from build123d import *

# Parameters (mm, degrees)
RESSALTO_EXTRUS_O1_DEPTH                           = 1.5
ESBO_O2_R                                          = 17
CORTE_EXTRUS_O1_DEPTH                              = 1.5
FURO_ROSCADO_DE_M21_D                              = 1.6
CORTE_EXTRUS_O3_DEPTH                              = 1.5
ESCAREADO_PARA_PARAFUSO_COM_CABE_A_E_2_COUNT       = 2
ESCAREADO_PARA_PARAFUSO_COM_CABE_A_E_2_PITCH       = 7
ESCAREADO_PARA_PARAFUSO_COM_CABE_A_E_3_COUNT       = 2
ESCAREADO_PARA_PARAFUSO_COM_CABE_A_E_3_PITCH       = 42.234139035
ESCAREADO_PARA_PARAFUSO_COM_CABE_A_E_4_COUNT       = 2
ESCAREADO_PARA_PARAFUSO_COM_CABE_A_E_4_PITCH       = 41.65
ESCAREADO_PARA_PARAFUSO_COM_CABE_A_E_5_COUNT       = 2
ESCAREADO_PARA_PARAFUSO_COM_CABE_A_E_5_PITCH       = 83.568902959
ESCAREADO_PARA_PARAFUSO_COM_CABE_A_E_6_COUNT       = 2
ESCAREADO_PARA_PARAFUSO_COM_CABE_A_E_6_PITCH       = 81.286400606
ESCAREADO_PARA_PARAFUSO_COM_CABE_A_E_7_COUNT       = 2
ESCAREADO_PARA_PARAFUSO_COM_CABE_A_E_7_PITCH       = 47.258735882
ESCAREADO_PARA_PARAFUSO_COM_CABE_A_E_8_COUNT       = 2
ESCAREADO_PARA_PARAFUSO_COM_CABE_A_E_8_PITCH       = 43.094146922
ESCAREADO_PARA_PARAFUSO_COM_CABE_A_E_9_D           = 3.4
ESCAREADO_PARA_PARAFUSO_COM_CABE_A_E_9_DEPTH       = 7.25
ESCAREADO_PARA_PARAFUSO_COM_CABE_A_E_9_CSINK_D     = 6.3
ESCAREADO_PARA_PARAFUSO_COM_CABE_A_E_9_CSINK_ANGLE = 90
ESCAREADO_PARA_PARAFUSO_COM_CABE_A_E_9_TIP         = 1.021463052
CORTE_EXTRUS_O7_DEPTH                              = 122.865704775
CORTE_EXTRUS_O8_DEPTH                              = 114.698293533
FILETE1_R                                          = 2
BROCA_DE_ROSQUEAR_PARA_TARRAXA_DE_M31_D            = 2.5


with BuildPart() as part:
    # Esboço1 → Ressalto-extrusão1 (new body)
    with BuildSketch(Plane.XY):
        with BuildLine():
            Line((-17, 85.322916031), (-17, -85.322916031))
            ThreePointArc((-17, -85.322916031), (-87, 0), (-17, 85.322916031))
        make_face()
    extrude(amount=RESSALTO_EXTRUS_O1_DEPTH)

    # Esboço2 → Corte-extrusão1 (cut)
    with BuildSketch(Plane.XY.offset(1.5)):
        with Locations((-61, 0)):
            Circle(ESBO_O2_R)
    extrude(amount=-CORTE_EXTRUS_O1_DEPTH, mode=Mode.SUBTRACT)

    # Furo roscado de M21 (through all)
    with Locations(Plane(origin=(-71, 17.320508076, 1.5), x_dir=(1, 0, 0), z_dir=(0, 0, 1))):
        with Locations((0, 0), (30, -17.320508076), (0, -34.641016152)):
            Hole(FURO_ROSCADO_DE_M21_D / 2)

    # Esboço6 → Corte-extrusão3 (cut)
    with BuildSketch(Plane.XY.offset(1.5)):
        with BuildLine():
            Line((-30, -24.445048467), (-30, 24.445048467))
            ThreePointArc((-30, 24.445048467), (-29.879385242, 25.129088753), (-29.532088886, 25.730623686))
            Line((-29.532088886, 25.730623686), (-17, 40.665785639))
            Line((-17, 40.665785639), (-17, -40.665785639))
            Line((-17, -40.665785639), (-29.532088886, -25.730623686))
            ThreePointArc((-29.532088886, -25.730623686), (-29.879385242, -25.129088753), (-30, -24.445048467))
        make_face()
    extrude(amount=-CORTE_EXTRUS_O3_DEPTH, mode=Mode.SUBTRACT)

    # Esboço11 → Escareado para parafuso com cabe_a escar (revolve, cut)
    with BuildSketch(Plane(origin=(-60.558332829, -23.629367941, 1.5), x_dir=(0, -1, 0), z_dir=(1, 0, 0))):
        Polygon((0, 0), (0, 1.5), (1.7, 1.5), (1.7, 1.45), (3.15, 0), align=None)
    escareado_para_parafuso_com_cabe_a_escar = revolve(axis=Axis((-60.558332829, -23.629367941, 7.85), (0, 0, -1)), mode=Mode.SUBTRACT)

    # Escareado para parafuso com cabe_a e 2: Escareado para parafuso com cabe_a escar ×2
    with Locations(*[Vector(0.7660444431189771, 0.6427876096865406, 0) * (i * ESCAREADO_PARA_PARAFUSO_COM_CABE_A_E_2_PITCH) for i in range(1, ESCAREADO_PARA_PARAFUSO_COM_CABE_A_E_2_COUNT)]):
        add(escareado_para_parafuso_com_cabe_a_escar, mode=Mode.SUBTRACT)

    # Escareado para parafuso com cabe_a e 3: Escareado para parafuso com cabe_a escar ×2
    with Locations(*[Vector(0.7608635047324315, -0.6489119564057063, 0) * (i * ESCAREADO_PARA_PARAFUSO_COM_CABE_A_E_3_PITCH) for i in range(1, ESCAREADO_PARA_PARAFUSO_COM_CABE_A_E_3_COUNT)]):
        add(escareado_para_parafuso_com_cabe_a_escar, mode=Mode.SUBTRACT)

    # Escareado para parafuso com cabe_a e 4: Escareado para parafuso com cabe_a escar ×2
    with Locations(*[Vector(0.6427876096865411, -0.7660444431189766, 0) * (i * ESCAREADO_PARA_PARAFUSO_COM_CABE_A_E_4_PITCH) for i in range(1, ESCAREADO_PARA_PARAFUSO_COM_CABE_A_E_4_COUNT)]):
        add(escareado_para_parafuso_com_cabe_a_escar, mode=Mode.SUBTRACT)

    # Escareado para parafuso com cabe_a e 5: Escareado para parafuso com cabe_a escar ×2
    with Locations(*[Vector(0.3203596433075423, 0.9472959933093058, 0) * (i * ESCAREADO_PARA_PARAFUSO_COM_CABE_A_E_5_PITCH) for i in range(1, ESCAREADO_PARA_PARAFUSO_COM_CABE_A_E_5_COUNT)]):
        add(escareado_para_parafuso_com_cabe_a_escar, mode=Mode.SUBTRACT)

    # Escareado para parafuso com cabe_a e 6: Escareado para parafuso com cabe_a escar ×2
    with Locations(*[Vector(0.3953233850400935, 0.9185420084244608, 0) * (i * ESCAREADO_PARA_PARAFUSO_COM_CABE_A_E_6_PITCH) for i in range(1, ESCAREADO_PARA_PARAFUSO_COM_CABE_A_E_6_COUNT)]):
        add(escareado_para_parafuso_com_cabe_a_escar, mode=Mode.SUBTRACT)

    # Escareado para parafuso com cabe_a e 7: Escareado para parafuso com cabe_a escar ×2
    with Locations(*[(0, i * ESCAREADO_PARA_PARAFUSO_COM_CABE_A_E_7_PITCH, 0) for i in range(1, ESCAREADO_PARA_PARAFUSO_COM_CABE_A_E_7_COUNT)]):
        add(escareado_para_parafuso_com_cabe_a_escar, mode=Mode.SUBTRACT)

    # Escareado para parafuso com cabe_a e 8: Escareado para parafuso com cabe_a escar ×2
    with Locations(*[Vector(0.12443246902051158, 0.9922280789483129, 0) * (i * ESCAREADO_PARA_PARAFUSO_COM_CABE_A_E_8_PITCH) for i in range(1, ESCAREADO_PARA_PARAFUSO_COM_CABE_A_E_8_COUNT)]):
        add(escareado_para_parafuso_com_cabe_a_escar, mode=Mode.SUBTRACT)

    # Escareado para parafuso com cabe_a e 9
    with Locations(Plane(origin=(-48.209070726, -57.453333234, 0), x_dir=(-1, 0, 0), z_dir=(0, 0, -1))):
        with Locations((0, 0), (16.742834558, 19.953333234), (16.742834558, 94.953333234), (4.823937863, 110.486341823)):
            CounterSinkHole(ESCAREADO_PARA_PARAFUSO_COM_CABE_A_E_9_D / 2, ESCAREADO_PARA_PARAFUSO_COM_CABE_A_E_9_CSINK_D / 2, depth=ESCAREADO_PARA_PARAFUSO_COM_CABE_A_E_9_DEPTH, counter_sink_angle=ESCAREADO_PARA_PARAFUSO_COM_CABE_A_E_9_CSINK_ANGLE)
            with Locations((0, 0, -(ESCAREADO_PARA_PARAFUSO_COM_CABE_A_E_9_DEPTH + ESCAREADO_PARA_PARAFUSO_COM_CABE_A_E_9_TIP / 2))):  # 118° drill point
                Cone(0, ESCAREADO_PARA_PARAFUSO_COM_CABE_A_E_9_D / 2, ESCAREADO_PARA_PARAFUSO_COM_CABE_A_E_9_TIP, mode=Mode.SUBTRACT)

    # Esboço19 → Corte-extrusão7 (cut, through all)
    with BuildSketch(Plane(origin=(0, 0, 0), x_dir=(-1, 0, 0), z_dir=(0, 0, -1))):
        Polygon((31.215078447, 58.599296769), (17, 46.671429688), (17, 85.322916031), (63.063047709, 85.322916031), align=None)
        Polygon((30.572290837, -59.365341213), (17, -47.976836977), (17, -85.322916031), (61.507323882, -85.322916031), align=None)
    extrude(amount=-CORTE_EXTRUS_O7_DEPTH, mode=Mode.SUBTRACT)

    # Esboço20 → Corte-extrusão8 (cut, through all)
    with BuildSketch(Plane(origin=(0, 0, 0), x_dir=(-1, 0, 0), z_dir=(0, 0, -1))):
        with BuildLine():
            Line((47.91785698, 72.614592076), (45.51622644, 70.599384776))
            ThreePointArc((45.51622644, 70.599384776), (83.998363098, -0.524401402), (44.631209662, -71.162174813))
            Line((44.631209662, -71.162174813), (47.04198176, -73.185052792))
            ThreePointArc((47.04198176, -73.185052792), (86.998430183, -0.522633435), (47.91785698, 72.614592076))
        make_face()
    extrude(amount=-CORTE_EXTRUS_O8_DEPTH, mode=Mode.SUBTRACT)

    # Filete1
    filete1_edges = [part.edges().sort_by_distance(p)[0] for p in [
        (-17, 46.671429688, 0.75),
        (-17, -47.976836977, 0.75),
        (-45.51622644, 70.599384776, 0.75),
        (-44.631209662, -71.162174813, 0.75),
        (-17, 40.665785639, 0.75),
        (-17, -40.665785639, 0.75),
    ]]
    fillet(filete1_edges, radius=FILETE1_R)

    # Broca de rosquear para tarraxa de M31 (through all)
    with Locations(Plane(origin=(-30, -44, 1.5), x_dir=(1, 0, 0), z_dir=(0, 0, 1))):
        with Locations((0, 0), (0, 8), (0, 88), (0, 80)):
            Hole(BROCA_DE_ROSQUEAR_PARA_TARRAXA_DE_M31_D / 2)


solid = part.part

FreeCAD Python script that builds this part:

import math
import FreeCAD as App
import Part
import Sketcher
from FreeCAD import Vector
Q = App.Units.Quantity


def edges_at(feature, points):
    """Names of the edges that pass closest to the given points."""
    edges = feature.Shape.Edges
    near = lambda p: min(range(len(edges)), key=lambda i: edges[i].distToShape(Part.Vertex(*p))[0])
    return sorted({f"Edge{near(p) + 1}" for p in points})

doc = App.newDocument("Part")
body = doc.addObject("PartDesign::Body", "Body")

sketch1 = doc.addObject("Sketcher::SketchObject", "Sketch")
body.addObject(sketch1)
sketch1.AttachmentSupport = (doc.XY_Plane, [""])
sketch1.MapMode = "FlatFace"
sketch1.addGeometry([
    Part.LineSegment(Vector(-17, -85.322916, 0), Vector(-17, 85.322916, 0)),
    Part.ArcOfCircle(Part.Circle(Vector(0, 0, 0), Vector(0, 0, 1), 87), math.radians(101.268226), math.radians(258.731774)),
], False)
sketch1.addConstraint([
    Sketcher.Constraint("Coincident", 0, 1, 1, 2),
    Sketcher.Constraint("Coincident", 1, 1, 0, 2),
    Sketcher.Constraint("Vertical", 0),
    Sketcher.Constraint("Coincident", 1, 3, -1, 1),
    Sketcher.Constraint("Radius", 1, Q("87 mm")),
    Sketcher.Constraint("DistanceX", 0, 1, -1, 1, Q("17 mm")),
])
pad1 = doc.addObject("PartDesign::Pad", "Pad")
body.addObject(pad1)
pad1.Profile = sketch1
pad1.Length = 1.5

sketch2 = doc.addObject("Sketcher::SketchObject", "Sketch001")
body.addObject(sketch2)
sketch2.AttachmentSupport = (doc.XY_Plane, [""])
sketch2.MapMode = "FlatFace"
sketch2.AttachmentOffset = App.Placement(Vector(0, 0, 1.5), App.Rotation())
sketch2.addGeometry(Part.Circle(Vector(-61, 0, 0), Vector(0, 0, 1), 17), False)
sketch2.addConstraint([
    Sketcher.Constraint("PointOnObject", 0, 3, -1),
    Sketcher.Constraint("Diameter", 0, Q("34 mm")),
    Sketcher.Constraint("DistanceX", 0, 3, -1, 1, Q("61 mm")),
])
pocket1 = doc.addObject("PartDesign::Pocket", "Pocket")
body.addObject(pocket1)
pocket1.Profile = sketch2
pocket1.Length = 1.5

sketch3 = doc.addObject("Sketcher::SketchObject", "Sketch002")
body.addObject(sketch3)
sketch3.AttachmentSupport = (doc.XY_Plane, [""])
sketch3.MapMode = "FlatFace"
sketch3.AttachmentOffset = App.Placement(Vector(0, 0, 1.5), App.Rotation())
sketch3.addGeometry([
    Part.Circle(Vector(-71, 17.320508, 0), Vector(0, 0, 1), 0.8),
    Part.Circle(Vector(-41, 0, 0), Vector(0, 0, 1), 0.8),
    Part.Circle(Vector(-71, -17.320508, 0), Vector(0, 0, 1), 0.8),
], False)
sketch3.addConstraint([
    Sketcher.Constraint("Equal", 0, 1),
    Sketcher.Constraint("Equal", 1, 2),
    Sketcher.Constraint("Symmetric", 0, 3, 2, 3, -1),
    Sketcher.Constraint("PointOnObject", 1, 3, -1),
    Sketcher.Constraint("Diameter", 0, Q("1.6 mm")),
    Sketcher.Constraint("DistanceX", 0, 3, -1, 1, Q("71 mm")),
    Sketcher.Constraint("DistanceX", 1, 3, -1, 1, Q("41 mm")),
    Sketcher.Constraint("DistanceY", -1, 1, 0, 3, Q("17.320508 mm")),
])
doc.recompute()
hole = doc.addObject("PartDesign::Hole", "Hole")
body.addObject(hole)
hole.Profile = sketch3
hole.ThreadType = "None"
hole.Diameter = 1.6
hole.DepthType = "ThroughAll"

sketch4 = doc.addObject("Sketcher::SketchObject", "Sketch003")
body.addObject(sketch4)
sketch4.AttachmentSupport = (doc.XY_Plane, [""])
sketch4.MapMode = "FlatFace"
sketch4.AttachmentOffset = App.Placement(Vector(0, 0, 1.5), App.Rotation())
sketch4.addGeometry([
    Part.LineSegment(Vector(-30, 24.445048, 0), Vector(-30, -24.445048, 0)),
    Part.ArcOfCircle(Part.Circle(Vector(-28, -24.445048, 0), Vector(0, 0, 1), 2), math.radians(180), math.radians(220)),
    Part.LineSegment(Vector(-29.532089, -25.730624, 0), Vector(-17, -40.665786, 0)),
    Part.LineSegment(Vector(-17, -40.665786, 0), Vector(-17, 40.665786, 0)),
    Part.LineSegment(Vector(-17, 40.665786, 0), Vector(-29.532089, 25.730624, 0)),
    Part.ArcOfCircle(Part.Circle(Vector(-28, 24.445048, 0), Vector(0, 0, 1), 2), math.radians(140), math.radians(180)),
], False)
sketch4.addConstraint([
    Sketcher.Constraint("Tangent", 0, 2, 1, 1),
    Sketcher.Constraint("Tangent", 1, 2, 2, 1),
    Sketcher.Constraint("Coincident", 2, 2, 3, 1),
    Sketcher.Constraint("Coincident", 3, 2, 4, 1),
    Sketcher.Constraint("Tangent", 4, 2, 5, 1),
    Sketcher.Constraint("Tangent", 5, 2, 0, 1),
    Sketcher.Constraint("Vertical", 0),
    Sketcher.Constraint("Vertical", 3),
    Sketcher.Constraint("Equal", 1, 5),
    Sketcher.Constraint("Symmetric", 1, 2, 4, 2, -1),
    Sketcher.Constraint("Radius", 1, Q("2 mm")),
    Sketcher.Constraint("Angle", 2, Q("-50 deg")),
    Sketcher.Constraint("DistanceX", 1, 3, -1, 1, Q("28 mm")),
    Sketcher.Constraint("DistanceX", 2, 2, -1, 1, Q("17 mm")),
    Sketcher.Constraint("DistanceY", 3, 1, 3, 2, Q("81.331571 mm")),
])
pocket2 = doc.addObject("PartDesign::Pocket", "Pocket001")
body.addObject(pocket2)
pocket2.Profile = sketch4
pocket2.Length = 1.5

sketch5 = doc.addObject("Sketcher::SketchObject", "Sketch004")
body.addObject(sketch5)
sketch5.AttachmentSupport = (doc.YZ_Plane, [""])
sketch5.MapMode = "FlatFace"
sketch5.AttachmentOffset = App.Placement(Vector(0, 0, -60.558333), App.Rotation())
sketch5.addGeometry([
    Part.LineSegment(Vector(-23.629368, 0, 0), Vector(-23.629368, 1.5, 0)),
    Part.LineSegment(Vector(-23.629368, 1.5, 0), Vector(-26.779368, 1.5, 0)),
    Part.LineSegment(Vector(-26.779368, 1.5, 0), Vector(-25.329368, 0.05, 0)),
    Part.LineSegment(Vector(-25.329368, 0.05, 0), Vector(-25.329368, 0, 0)),
    Part.LineSegment(Vector(-25.329368, 0, 0), Vector(-23.629368, 0, 0)),
], False)
sketch5.addGeometry(Part.LineSegment(Vector(-23.629368, 1.5, 0), Vector(-23.629368, 0, 0)), True)
sketch5.addConstraint([
    Sketcher.Constraint("Coincident", 0, 2, 1, 1),
    Sketcher.Constraint("Coincident", 1, 2, 2, 1),
    Sketcher.Constraint("Coincident", 2, 2, 3, 1),
    Sketcher.Constraint("Coincident", 3, 2, 4, 1),
    Sketcher.Constraint("Coincident", 4, 2, 0, 1),
    Sketcher.Constraint("Vertical", 0),
    Sketcher.Constraint("Horizontal", 1),
    Sketcher.Constraint("Vertical", 3),
    Sketcher.Constraint("Horizontal", 4),
    Sketcher.Constraint("Vertical", 5),
    Sketcher.Constraint("Coincident", 5, 1, 0, 2),
    Sketcher.Constraint("PointOnObject", 3, 2, -1),
    Sketcher.Constraint("PointOnObject", 5, 2, -1),
    Sketcher.Constraint("Angle", 2, Q("-45 deg")),
    Sketcher.Constraint("DistanceX", 4, 1, 4, 2, Q("1.7 mm")),
    Sketcher.Constraint("DistanceY", 0, 1, 0, 2, Q("1.5 mm")),
    Sketcher.Constraint("DistanceX", 1, 2, 1, 1, Q("3.15 mm")),
    Sketcher.Constraint("DistanceX", 0, 2, -1, 1, Q("23.629368 mm")),
])
groove = doc.addObject("PartDesign::Groove", "Groove")
body.addObject(groove)
groove.Profile = sketch5
groove.ReferenceAxis = (sketch5, ["Axis0"])
groove.Angle = 360
doc.recompute()

datumline = doc.addObject("PartDesign::Line", "DatumLine")
body.addObject(datumline)
datumline.Placement = App.Placement(Vector(0, 0, 0), App.Rotation(Vector(0, 0, 1), Vector(0.766044443, 0.64278761, 0)))
linearpattern = doc.addObject("PartDesign::LinearPattern", "LinearPattern")
body.addObject(linearpattern)
linearpattern.Originals = [groove]
linearpattern.Direction = (datumline, [""])
linearpattern.Mode = "offset"
linearpattern.Offset = 7
linearpattern.Occurrences = 2
body.Tip = linearpattern
doc.recompute()

datumline2 = doc.addObject("PartDesign::Line", "DatumLine001")
body.addObject(datumline2)
datumline2.Placement = App.Placement(Vector(0, 0, 0), App.Rotation(Vector(0, 0, 1), Vector(0.760863505, -0.648911956, 0)))
linearpattern2 = doc.addObject("PartDesign::LinearPattern", "LinearPattern001")
body.addObject(linearpattern2)
linearpattern2.Originals = [groove]
linearpattern2.Direction = (datumline2, [""])
linearpattern2.Mode = "offset"
linearpattern2.Offset = 42.234139
linearpattern2.Occurrences = 2
body.Tip = linearpattern2
doc.recompute()

datumline3 = doc.addObject("PartDesign::Line", "DatumLine002")
body.addObject(datumline3)
datumline3.Placement = App.Placement(Vector(0, 0, 0), App.Rotation(Vector(0, 0, 1), Vector(0.64278761, -0.766044443, 0)))
linearpattern3 = doc.addObject("PartDesign::LinearPattern", "LinearPattern002")
body.addObject(linearpattern3)
linearpattern3.Originals = [groove]
linearpattern3.Direction = (datumline3, [""])
linearpattern3.Mode = "offset"
linearpattern3.Offset = 41.65
linearpattern3.Occurrences = 2
body.Tip = linearpattern3
doc.recompute()

datumline4 = doc.addObject("PartDesign::Line", "DatumLine003")
body.addObject(datumline4)
datumline4.Placement = App.Placement(Vector(0, 0, 0), App.Rotation(Vector(0, 0, 1), Vector(0.320359643, 0.947295993, 0)))
linearpattern4 = doc.addObject("PartDesign::LinearPattern", "LinearPattern003")
body.addObject(linearpattern4)
linearpattern4.Originals = [groove]
linearpattern4.Direction = (datumline4, [""])
linearpattern4.Mode = "offset"
linearpattern4.Offset = 83.568903
linearpattern4.Occurrences = 2
body.Tip = linearpattern4
doc.recompute()

datumline5 = doc.addObject("PartDesign::Line", "DatumLine004")
body.addObject(datumline5)
datumline5.Placement = App.Placement(Vector(0, 0, 0), App.Rotation(Vector(0, 0, 1), Vector(0.395323385, 0.918542008, 0)))
linearpattern5 = doc.addObject("PartDesign::LinearPattern", "LinearPattern004")
body.addObject(linearpattern5)
linearpattern5.Originals = [groove]
linearpattern5.Direction = (datumline5, [""])
linearpattern5.Mode = "offset"
linearpattern5.Offset = 81.286401
linearpattern5.Occurrences = 2
body.Tip = linearpattern5
doc.recompute()

linearpattern6 = doc.addObject("PartDesign::LinearPattern", "LinearPattern005")
body.addObject(linearpattern6)
linearpattern6.Originals = [groove]
linearpattern6.Direction = (doc.Y_Axis, [""])
linearpattern6.Mode = "offset"
linearpattern6.Offset = 47.258736
linearpattern6.Occurrences = 2
body.Tip = linearpattern6
doc.recompute()

datumline6 = doc.addObject("PartDesign::Line", "DatumLine005")
body.addObject(datumline6)
datumline6.Placement = App.Placement(Vector(0, 0, 0), App.Rotation(Vector(0, 0, 1), Vector(0.124432469, 0.992228079, 0)))
linearpattern7 = doc.addObject("PartDesign::LinearPattern", "LinearPattern006")
body.addObject(linearpattern7)
linearpattern7.Originals = [groove]
linearpattern7.Direction = (datumline6, [""])
linearpattern7.Mode = "offset"
linearpattern7.Offset = 43.094147
linearpattern7.Occurrences = 2
body.Tip = linearpattern7

sketch6 = doc.addObject("Sketcher::SketchObject", "Sketch005")
body.addObject(sketch6)
sketch6.AttachmentSupport = (doc.XY_Plane, [""])
sketch6.MapMode = "FlatFace"
sketch6.addGeometry([
    Part.Circle(Vector(-48.209071, -57.453333, 0), Vector(0, 0, 1), 1.7),
    Part.Circle(Vector(-64.951905, -37.5, 0), Vector(0, 0, 1), 1.7),
    Part.Circle(Vector(-64.951905, 37.5, 0), Vector(0, 0, 1), 1.7),
    Part.Circle(Vector(-53.033009, 53.033009, 0), Vector(0, 0, 1), 1.7),
], False)
sketch6.addConstraint([
    Sketcher.Constraint("Equal", 0, 1),
    Sketcher.Constraint("Equal", 1, 2),
    Sketcher.Constraint("Equal", 2, 3),
    Sketcher.Constraint("Symmetric", 1, 3, 2, 3, -1),
    Sketcher.Constraint("Diameter", 0, Q("3.4 mm")),
    Sketcher.Constraint("DistanceY", 1, 3, 2, 3, Q("75 mm")),
    Sketcher.Constraint("DistanceX", 0, 3, -1, 1, Q("48.209071 mm")),
    Sketcher.Constraint("DistanceX", 3, 3, -1, 1, Q("53.033009 mm")),
    Sketcher.Constraint("DistanceY", -1, 1, 3, 3, Q("53.033009 mm")),
    Sketcher.Constraint("DistanceY", 0, 3, 3, 3, Q("110.486342 mm")),
    Sketcher.Constraint("DistanceX", 1, 3, -1, 1, Q("64.951905 mm")),
])
doc.recompute()
hole2 = doc.addObject("PartDesign::Hole", "Hole001")
body.addObject(hole2)
hole2.Profile = sketch6
hole2.ThreadType = "None"
hole2.Diameter = 3.4
hole2.DepthType = "Dimension"
hole2.Depth = 7.25
hole2.DrillPoint = "Angled"
hole2.DrillPointAngle = 118
hole2.HoleCutType = "Countersink"
hole2.HoleCutDiameter = 6.3
hole2.HoleCutCountersinkAngle = 90
hole2.Reversed = True

sketch7 = doc.addObject("Sketcher::SketchObject", "Sketch006")
body.addObject(sketch7)
sketch7.AttachmentSupport = (doc.XY_Plane, [""])
sketch7.MapMode = "FlatFace"
sketch7.addGeometry([
    Part.LineSegment(Vector(-17, 46.67143, 0), Vector(-31.215078, 58.599297, 0)),
    Part.LineSegment(Vector(-31.215078, 58.599297, 0), Vector(-63.063048, 85.322916, 0)),
    Part.LineSegment(Vector(-63.063048, 85.322916, 0), Vector(-17, 85.322916, 0)),
    Part.LineSegment(Vector(-17, 85.322916, 0), Vector(-17, 46.67143, 0)),
    Part.LineSegment(Vector(-30.572291, -59.365341, 0), Vector(-17, -47.976837, 0)),
    Part.LineSegment(Vector(-17, -47.976837, 0), Vector(-17, -85.322916, 0)),
    Part.LineSegment(Vector(-17, -85.322916, 0), Vector(-61.507324, -85.322916, 0)),
    Part.LineSegment(Vector(-61.507324, -85.322916, 0), Vector(-30.572291, -59.365341, 0)),
], False)
sketch7.addConstraint([
    Sketcher.Constraint("Coincident", 0, 2, 1, 1),
    Sketcher.Constraint("Coincident", 1, 2, 2, 1),
    Sketcher.Constraint("Coincident", 2, 2, 3, 1),
    Sketcher.Constraint("Coincident", 3, 2, 0, 1),
    Sketcher.Constraint("Coincident", 4, 2, 5, 1),
    Sketcher.Constraint("Coincident", 5, 2, 6, 1),
    Sketcher.Constraint("Coincident", 6, 2, 7, 1),
    Sketcher.Constraint("Coincident", 7, 2, 4, 1),
    Sketcher.Constraint("Horizontal", 2),
    Sketcher.Constraint("Vertical", 3),
    Sketcher.Constraint("Vertical", 5),
    Sketcher.Constraint("Horizontal", 6),
    Sketcher.Constraint("Symmetric", 2, 2, 5, 2, -1),
    Sketcher.Constraint("Parallel", 0, 1),
    Sketcher.Constraint("Parallel", 4, 7),
    Sketcher.Constraint("Angle", 0, Q("140 deg")),
    Sketcher.Constraint("Angle", 4, Q("40 deg")),
    Sketcher.Constraint("DistanceX", 2, 2, -1, 1, Q("17 mm")),
    Sketcher.Constraint("DistanceY", 5, 2, 5, 1, Q("37.346079 mm")),
    Sketcher.Constraint("Distance", 1, Q("41.574571 mm")),
    Sketcher.Constraint("DistanceX", 2, 1, 2, 2, Q("46.063048 mm")),
    Sketcher.Constraint("DistanceY", -1, 1, 3, 2, Q("46.67143 mm")),
    Sketcher.Constraint("DistanceX", 7, 2, -1, 1, Q("30.572291 mm")),
])
pocket3 = doc.addObject("PartDesign::Pocket", "Pocket002")
body.addObject(pocket3)
pocket3.Profile = sketch7
pocket3.Type = "ThroughAll"
pocket3.Reversed = True

sketch8 = doc.addObject("Sketcher::SketchObject", "Sketch007")
body.addObject(sketch8)
sketch8.AttachmentSupport = (doc.XY_Plane, [""])
sketch8.MapMode = "FlatFace"
sketch8.addGeometry([
    Part.LineSegment(Vector(-47.917857, 72.614592, 0), Vector(-45.516226, 70.599385, 0)),
    Part.ArcOfCircle(Part.Circle(Vector(0, 0, 0), Vector(0, 0, 1), 84), math.radians(122.810336), math.radians(237.905049)),
    Part.LineSegment(Vector(-44.63121, -71.162175, 0), Vector(-47.041982, -73.185053, 0)),
    Part.ArcOfCircle(Part.Circle(Vector(0, 0, 0), Vector(0, 0, 1), 87), math.radians(123.420538), math.radians(237.26785)),
], False)
sketch8.addConstraint([
    Sketcher.Constraint("Coincident", 0, 2, 1, 1),
    Sketcher.Constraint("Coincident", 1, 2, 2, 1),
    Sketcher.Constraint("Coincident", 2, 2, 3, 2),
    Sketcher.Constraint("Coincident", 3, 1, 0, 1),
    Sketcher.Constraint("Coincident", 1, 3, -1, 1),
    Sketcher.Constraint("Coincident", 3, 3, -1, 1),
    Sketcher.Constraint("Radius", 1, Q("84 mm")),
    Sketcher.Constraint("Radius", 3, Q("87 mm")),
    Sketcher.Constraint("Distance", 2, Q("3.147039 mm")),
    Sketcher.Constraint("DistanceX", 1, 2, -1, 1, Q("44.63121 mm")),
    Sketcher.Constraint("DistanceY", 1, 2, 0, 2, Q("141.76156 mm")),
    Sketcher.Constraint("DistanceX", 3, 1, 0, 2, Q("2.401631 mm")),
])
pocket4 = doc.addObject("PartDesign::Pocket", "Pocket003")
body.addObject(pocket4)
pocket4.Profile = sketch8
pocket4.Type = "ThroughAll"
pocket4.Reversed = True
doc.recompute()

fillet = doc.addObject("PartDesign::Fillet", "Fillet")
body.addObject(fillet)
fillet.Base = (pocket4, edges_at(pocket4, [
    (-17, 46.671, 0.75),
    (-17, -47.977, 0.75),
    (-45.516, 70.599, 0.75),
    (-44.631, -71.162, 0.75),
    (-17, 40.666, 0.75),
    (-17, -40.666, 0.75),
]))
fillet.Radius = 2

sketch9 = doc.addObject("Sketcher::SketchObject", "Sketch008")
body.addObject(sketch9)
sketch9.AttachmentSupport = (doc.XY_Plane, [""])
sketch9.MapMode = "FlatFace"
sketch9.AttachmentOffset = App.Placement(Vector(0, 0, 1.5), App.Rotation())
sketch9.addGeometry([
    Part.Circle(Vector(-30, -44, 0), Vector(0, 0, 1), 1.25),
    Part.Circle(Vector(-30, -36, 0), Vector(0, 0, 1), 1.25),
    Part.Circle(Vector(-30, 44, 0), Vector(0, 0, 1), 1.25),
    Part.Circle(Vector(-30, 36, 0), Vector(0, 0, 1), 1.25),
], False)
sketch9.addConstraint([
    Sketcher.Constraint("Equal", 0, 1),
    Sketcher.Constraint("Equal", 1, 2),
    Sketcher.Constraint("Equal", 2, 3),
    Sketcher.Constraint("Symmetric", 0, 3, 2, 3, -1),
    Sketcher.Constraint("Symmetric", 1, 3, 3, 3, -1),
    Sketcher.Constraint("Vertical", 0, 3, 1, 3),
    Sketcher.Constraint("Diameter", 0, Q("2.5 mm")),
    Sketcher.Constraint("DistanceX", 0, 3, -1, 1, Q("30 mm")),
    Sketcher.Constraint("DistanceY", 0, 3, -1, 1, Q("44 mm")),
    Sketcher.Constraint("DistanceY", 1, 3, -1, 1, Q("36 mm")),
])
doc.recompute()
hole3 = doc.addObject("PartDesign::Hole", "Hole002")
body.addObject(hole3)
hole3.Profile = sketch9
hole3.ThreadType = "None"
hole3.Diameter = 2.5
hole3.DepthType = "ThroughAll"

doc.recompute()
